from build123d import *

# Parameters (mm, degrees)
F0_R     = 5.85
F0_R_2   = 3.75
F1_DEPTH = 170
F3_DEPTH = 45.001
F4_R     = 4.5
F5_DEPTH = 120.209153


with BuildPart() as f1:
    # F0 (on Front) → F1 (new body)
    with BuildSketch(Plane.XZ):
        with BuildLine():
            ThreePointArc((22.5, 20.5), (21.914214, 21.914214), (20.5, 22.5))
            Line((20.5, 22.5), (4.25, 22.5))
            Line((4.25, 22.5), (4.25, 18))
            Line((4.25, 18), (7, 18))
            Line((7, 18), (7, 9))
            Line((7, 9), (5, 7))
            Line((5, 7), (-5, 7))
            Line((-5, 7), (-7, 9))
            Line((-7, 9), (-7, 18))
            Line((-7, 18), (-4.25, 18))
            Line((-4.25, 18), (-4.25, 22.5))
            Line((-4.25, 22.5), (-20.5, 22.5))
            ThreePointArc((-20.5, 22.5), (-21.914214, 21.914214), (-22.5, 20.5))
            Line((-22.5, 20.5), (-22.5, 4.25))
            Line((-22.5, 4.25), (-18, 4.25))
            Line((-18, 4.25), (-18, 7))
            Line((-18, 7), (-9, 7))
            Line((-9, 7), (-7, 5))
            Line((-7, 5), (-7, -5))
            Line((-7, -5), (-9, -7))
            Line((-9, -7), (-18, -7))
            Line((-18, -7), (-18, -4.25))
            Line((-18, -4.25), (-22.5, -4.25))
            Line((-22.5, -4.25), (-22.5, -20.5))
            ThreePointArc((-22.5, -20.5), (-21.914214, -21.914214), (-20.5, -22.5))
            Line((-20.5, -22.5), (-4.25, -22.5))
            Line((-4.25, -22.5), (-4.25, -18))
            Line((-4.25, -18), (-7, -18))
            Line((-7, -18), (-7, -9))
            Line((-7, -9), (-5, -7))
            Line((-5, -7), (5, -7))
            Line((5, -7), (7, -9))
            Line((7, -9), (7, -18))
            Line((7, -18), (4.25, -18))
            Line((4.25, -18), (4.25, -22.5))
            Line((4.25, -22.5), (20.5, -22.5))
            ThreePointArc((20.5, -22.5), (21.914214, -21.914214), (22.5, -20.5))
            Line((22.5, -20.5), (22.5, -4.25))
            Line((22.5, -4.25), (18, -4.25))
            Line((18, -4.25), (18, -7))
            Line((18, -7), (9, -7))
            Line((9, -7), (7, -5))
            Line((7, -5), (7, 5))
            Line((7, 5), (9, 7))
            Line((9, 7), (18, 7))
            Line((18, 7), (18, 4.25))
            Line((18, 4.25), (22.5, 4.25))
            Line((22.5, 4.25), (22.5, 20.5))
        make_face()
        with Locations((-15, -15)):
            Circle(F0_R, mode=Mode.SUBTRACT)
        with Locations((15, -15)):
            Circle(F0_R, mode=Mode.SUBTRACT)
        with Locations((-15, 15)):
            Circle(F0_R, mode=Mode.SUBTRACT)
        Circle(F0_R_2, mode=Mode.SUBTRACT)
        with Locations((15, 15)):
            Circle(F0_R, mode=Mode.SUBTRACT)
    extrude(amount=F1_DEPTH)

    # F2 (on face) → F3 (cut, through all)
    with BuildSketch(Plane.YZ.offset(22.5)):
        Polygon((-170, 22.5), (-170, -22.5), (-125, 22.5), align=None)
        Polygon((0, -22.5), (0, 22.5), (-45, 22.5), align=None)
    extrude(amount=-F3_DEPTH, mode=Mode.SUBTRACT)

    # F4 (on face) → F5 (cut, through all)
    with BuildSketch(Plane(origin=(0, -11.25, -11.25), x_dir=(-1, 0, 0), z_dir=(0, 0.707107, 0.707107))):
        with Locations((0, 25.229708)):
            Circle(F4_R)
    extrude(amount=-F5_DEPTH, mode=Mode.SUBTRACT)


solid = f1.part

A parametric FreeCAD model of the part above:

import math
import FreeCAD as App
import Part
import Sketcher


def add_polygon(sketch, points):
    """Adds a closed chain of lines whose ends are joined by coincident constraints."""
    first, n = sketch.GeometryCount, len(points)
    for a, b in zip(points, points[1:] + points[:1]):
        sketch.addGeometry(Part.LineSegment(App.Vector(*a, 0), App.Vector(*b, 0)), False)
    for i in range(n):
        sketch.addConstraint(Sketcher.Constraint("Coincident", first + i, 2, first + (i + 1) % n, 1))

doc = App.newDocument("Part")
body = doc.addObject("PartDesign::Body", "Body")

sketch1 = body.newObject("Sketcher::SketchObject", "Sketch")
sketch1.AttachmentSupport = (doc.getObject("XZ_Plane"), [""])
sketch1.MapMode = "FlatFace"
sketch1.addGeometry(Part.ArcOfCircle(Part.Circle(App.Vector(20.500001, 20.500001, 0), App.Vector(0, 0, 1), 1.999999), math.radians(-0.000043), math.radians(90.000043)), False)
sketch1.addGeometry(Part.LineSegment(App.Vector(20.5, 22.5, 0), App.Vector(4.25, 22.5, 0)), False)
sketch1.addGeometry(Part.LineSegment(App.Vector(4.25, 22.5, 0), App.Vector(4.25, 18, 0)), False)
sketch1.addGeometry(Part.LineSegment(App.Vector(4.25, 18, 0), App.Vector(7, 18, 0)), False)
sketch1.addGeometry(Part.LineSegment(App.Vector(7, 18, 0), App.Vector(7, 9, 0)), False)
sketch1.addGeometry(Part.LineSegment(App.Vector(7, 9, 0), App.Vector(5, 7, 0)), False)
sketch1.addGeometry(Part.LineSegment(App.Vector(5, 7, 0), App.Vector(-5, 7, 0)), False)
sketch1.addGeometry(Part.LineSegment(App.Vector(-5, 7, 0), App.Vector(-7, 9, 0)), False)
sketch1.addGeometry(Part.LineSegment(App.Vector(-7, 9, 0), App.Vector(-7, 18, 0)), False)
sketch1.addGeometry(Part.LineSegment(App.Vector(-7, 18, 0), App.Vector(-4.25, 18, 0)), False)
sketch1.addGeometry(Part.LineSegment(App.Vector(-4.25, 18, 0), App.Vector(-4.25, 22.5, 0)), False)
sketch1.addGeometry(Part.LineSegment(App.Vector(-4.25, 22.5, 0), App.Vector(-20.5, 22.5, 0)), False)
sketch1.addGeometry(Part.ArcOfCircle(Part.Circle(App.Vector(-20.500001, 20.500001, 0), App.Vector(0, 0, 1), 1.999999), math.radians(89.999957), math.radians(180.000043)), False)
sketch1.addGeometry(Part.LineSegment(App.Vector(-22.5, 20.5, 0), App.Vector(-22.5, 4.25, 0)), False)
sketch1.addGeometry(Part.LineSegment(App.Vector(-22.5, 4.25, 0), App.Vector(-18, 4.25, 0)), False)
sketch1.addGeometry(Part.LineSegment(App.Vector(-18, 4.25, 0), App.Vector(-18, 7, 0)), False)
sketch1.addGeometry(Part.LineSegment(App.Vector(-18, 7, 0), App.Vector(-9, 7, 0)), False)
sketch1.addGeometry(Part.LineSegment(App.Vector(-9, 7, 0), App.Vector(-7, 5, 0)), False)
sketch1.addGeometry(Part.LineSegment(App.Vector(-7, 5, 0), App.Vector(-7, -5, 0)), False)
sketch1.addGeometry(Part.LineSegment(App.Vector(-7, -5, 0), App.Vector(-9, -7, 0)), False)
sketch1.addGeometry(Part.LineSegment(App.Vector(-9, -7, 0), App.Vector(-18, -7, 0)), False)
sketch1.addGeometry(Part.LineSegment(App.Vector(-18, -7, 0), App.Vector(-18, -4.25, 0)), False)
sketch1.addGeometry(Part.LineSegment(App.Vector(-18, -4.25, 0), App.Vector(-22.5, -4.25, 0)), False)
sketch1.addGeometry(Part.LineSegment(App.Vector(-22.5, -4.25, 0), App.Vector(-22.5, -20.5, 0)), False)
sketch1.addGeometry(Part.ArcOfCircle(Part.Circle(App.Vector(-20.500001, -20.500001, 0), App.Vector(0, 0, 1), 1.999999), math.radians(179.999957), math.radians(270.000043)), False)
sketch1.addGeometry(Part.LineSegment(App.Vector(-20.5, -22.5, 0), App.Vector(-4.25, -22.5, 0)), False)
sketch1.addGeometry(Part.LineSegment(App.Vector(-4.25, -22.5, 0), App.Vector(-4.25, -18, 0)), False)
sketch1.addGeometry(Part.LineSegment(App.Vector(-4.25, -18, 0), App.Vector(-7, -18, 0)), False)
sketch1.addGeometry(Part.LineSegment(App.Vector(-7, -18, 0), App.Vector(-7, -9, 0)), False)
sketch1.addGeometry(Part.LineSegment(App.Vector(-7, -9, 0), App.Vector(-5, -7, 0)), False)
sketch1.addGeometry(Part.LineSegment(App.Vector(-5, -7, 0), App.Vector(5, -7, 0)), False)
sketch1.addGeometry(Part.LineSegment(App.Vector(5, -7, 0), App.Vector(7, -9, 0)), False)
sketch1.addGeometry(Part.LineSegment(App.Vector(7, -9, 0), App.Vector(7, -18, 0)), False)
sketch1.addGeometry(Part.LineSegment(App.Vector(7, -18, 0), App.Vector(4.25, -18, 0)), False)
sketch1.addGeometry(Part.LineSegment(App.Vector(4.25, -18, 0), App.Vector(4.25, -22.5, 0)), False)
sketch1.addGeometry(Part.LineSegment(App.Vector(4.25, -22.5, 0), App.Vector(20.5, -22.5, 0)), False)
sketch1.addGeometry(Part.ArcOfCircle(Part.Circle(App.Vector(20.500001, -20.500001, 0), App.Vector(0, 0, 1), 1.999999), math.radians(-90.000043), math.radians(0.000043)), False)
sketch1.addGeometry(Part.LineSegment(App.Vector(22.5, -20.5, 0), App.Vector(22.5, -4.25, 0)), False)
sketch1.addGeometry(Part.LineSegment(App.Vector(22.5, -4.25, 0), App.Vector(18, -4.25, 0)), False)
sketch1.addGeometry(Part.LineSegment(App.Vector(18, -4.25, 0), App.Vector(18, -7, 0)), False)
sketch1.addGeometry(Part.LineSegment(App.Vector(18, -7, 0), App.Vector(9, -7, 0)), False)
sketch1.addGeometry(Part.LineSegment(App.Vector(9, -7, 0), App.Vector(7, -5, 0)), False)
sketch1.addGeometry(Part.LineSegment(App.Vector(7, -5, 0), App.Vector(7, 5, 0)), False)
sketch1.addGeometry(Part.LineSegment(App.Vector(7, 5, 0), App.Vector(9, 7, 0)), False)
sketch1.addGeometry(Part.LineSegment(App.Vector(9, 7, 0), App.Vector(18, 7, 0)), False)
sketch1.addGeometry(Part.LineSegment(App.Vector(18, 7, 0), App.Vector(18, 4.25, 0)), False)
sketch1.addGeometry(Part.LineSegment(App.Vector(18, 4.25, 0), App.Vector(22.5, 4.25, 0)), False)
sketch1.addGeometry(Part.LineSegment(App.Vector(22.5, 4.25, 0), App.Vector(22.5, 20.5, 0)), False)
sketch1.addGeometry(Part.Circle(App.Vector(-15, -15, 0), App.Vector(0, 0, 1), 5.85), False)
sketch1.addGeometry(Part.Circle(App.Vector(15, -15, 0), App.Vector(0, 0, 1), 5.85), False)
sketch1.addGeometry(Part.Circle(App.Vector(-15, 15, 0), App.Vector(0, 0, 1), 5.85), False)
sketch1.addGeometry(Part.Circle(App.Vector(0, 0, 0), App.Vector(0, 0, 1), 3.75), False)
sketch1.addGeometry(Part.Circle(App.Vector(15, 15, 0), App.Vector(0, 0, 1), 5.85), False)
sketch1.addConstraint(Sketcher.Constraint("Tangent", 0, 2, 1, 1))
sketch1.addConstraint(Sketcher.Constraint("Coincident", 1, 2, 2, 1))
sketch1.addConstraint(Sketcher.Constraint("Coincident", 2, 2, 3, 1))
sketch1.addConstraint(Sketcher.Constraint("Coincident", 3, 2, 4, 1))
sketch1.addConstraint(Sketcher.Constraint("Coincident", 4, 2, 5, 1))
sketch1.addConstraint(Sketcher.Constraint("Coincident", 5, 2, 6, 1))
sketch1.addConstraint(Sketcher.Constraint("Coincident", 6, 2, 7, 1))
sketch1.addConstraint(Sketcher.Constraint("Coincident", 7, 2, 8, 1))
sketch1.addConstraint(Sketcher.Constraint("Coincident", 8, 2, 9, 1))
sketch1.addConstraint(Sketcher.Constraint("Coincident", 9, 2, 10, 1))
sketch1.addConstraint(Sketcher.Constraint("Coincident", 10, 2, 11, 1))
sketch1.addConstraint(Sketcher.Constraint("Tangent", 11, 2, 12, 1))
sketch1.addConstraint(Sketcher.Constraint("Tangent", 12, 2, 13, 1))
sketch1.addConstraint(Sketcher.Constraint("Coincident", 13, 2, 14, 1))
sketch1.addConstraint(Sketcher.Constraint("Coincident", 14, 2, 15, 1))
sketch1.addConstraint(Sketcher.Constraint("Coincident", 15, 2, 16, 1))
sketch1.addConstraint(Sketcher.Constraint("Coincident", 16, 2, 17, 1))
sketch1.addConstraint(Sketcher.Constraint("Coincident", 17, 2, 18, 1))
sketch1.addConstraint(Sketcher.Constraint("Coincident", 18, 2, 19, 1))
sketch1.addConstraint(Sketcher.Constraint("Coincident", 19, 2, 20, 1))
sketch1.addConstraint(Sketcher.Constraint("Coincident", 20, 2, 21, 1))
sketch1.addConstraint(Sketcher.Constraint("Coincident", 21, 2, 22, 1))
sketch1.addConstraint(Sketcher.Constraint("Coincident", 22, 2, 23, 1))
sketch1.addConstraint(Sketcher.Constraint("Tangent", 23, 2, 24, 1))
sketch1.addConstraint(Sketcher.Constraint("Tangent", 24, 2, 25, 1))
sketch1.addConstraint(Sketcher.Constraint("Coincident", 25, 2, 26, 1))
sketch1.addConstraint(Sketcher.Constraint("Coincident", 26, 2, 27, 1))
sketch1.addConstraint(Sketcher.Constraint("Coincident", 27, 2, 28, 1))
sketch1.addConstraint(Sketcher.Constraint("Coincident", 28, 2, 29, 1))
sketch1.addConstraint(Sketcher.Constraint("Coincident", 29, 2, 30, 1))
sketch1.addConstraint(Sketcher.Constraint("Coincident", 30, 2, 31, 1))
sketch1.addConstraint(Sketcher.Constraint("Coincident", 31, 2, 32, 1))
sketch1.addConstraint(Sketcher.Constraint("Coincident", 32, 2, 33, 1))
sketch1.addConstraint(Sketcher.Constraint("Coincident", 33, 2, 34, 1))
sketch1.addConstraint(Sketcher.Constraint("Coincident", 34, 2, 35, 1))
sketch1.addConstraint(Sketcher.Constraint("Tangent", 35, 2, 36, 1))
sketch1.addConstraint(Sketcher.Constraint("Tangent", 36, 2, 37, 1))
sketch1.addConstraint(Sketcher.Constraint("Coincident", 37, 2, 38, 1))
sketch1.addConstraint(Sketcher.Constraint("Coincident", 38, 2, 39, 1))
sketch1.addConstraint(Sketcher.Constraint("Coincident", 39, 2, 40, 1))
sketch1.addConstraint(Sketcher.Constraint("Coincident", 40, 2, 41, 1))
sketch1.addConstraint(Sketcher.Constraint("Coincident", 41, 2, 42, 1))
sketch1.addConstraint(Sketcher.Constraint("Coincident", 42, 2, 43, 1))
sketch1.addConstraint(Sketcher.Constraint("Coincident", 43, 2, 44, 1))
sketch1.addConstraint(Sketcher.Constraint("Coincident", 44, 2, 45, 1))
sketch1.addConstraint(Sketcher.Constraint("Coincident", 45, 2, 46, 1))
sketch1.addConstraint(Sketcher.Constraint("Coincident", 46, 2, 47, 1))
sketch1.addConstraint(Sketcher.Constraint("Tangent", 47, 2, 0, 1))
sketch1.addConstraint(Sketcher.Constraint("Horizontal", 1))
sketch1.addConstraint(Sketcher.Constraint("Vertical", 2))
sketch1.addConstraint(Sketcher.Constraint("Horizontal", 3))
sketch1.addConstraint(Sketcher.Constraint("Vertical", 4))
sketch1.addConstraint(Sketcher.Constraint("Horizontal", 6))
sketch1.addConstraint(Sketcher.Constraint("Vertical", 8))
sketch1.addConstraint(Sketcher.Constraint("Horizontal", 9))
sketch1.addConstraint(Sketcher.Constraint("Vertical", 10))
sketch1.addConstraint(Sketcher.Constraint("Horizontal", 11))
sketch1.addConstraint(Sketcher.Constraint("Vertical", 13))
sketch1.addConstraint(Sketcher.Constraint("Horizontal", 14))
sketch1.addConstraint(Sketcher.Constraint("Vertical", 15))
sketch1.addConstraint(Sketcher.Constraint("Horizontal", 16))
sketch1.addConstraint(Sketcher.Constraint("Vertical", 18))
sketch1.addConstraint(Sketcher.Constraint("Horizontal", 20))
sketch1.addConstraint(Sketcher.Constraint("Vertical", 21))
sketch1.addConstraint(Sketcher.Constraint("Horizontal", 22))
sketch1.addConstraint(Sketcher.Constraint("Vertical", 23))
sketch1.addConstraint(Sketcher.Constraint("Horizontal", 25))
sketch1.addConstraint(Sketcher.Constraint("Vertical", 26))
sketch1.addConstraint(Sketcher.Constraint("Horizontal", 27))
sketch1.addConstraint(Sketcher.Constraint("Vertical", 28))
sketch1.addConstraint(Sketcher.Constraint("Horizontal", 30))
sketch1.addConstraint(Sketcher.Constraint("Vertical", 32))
sketch1.addConstraint(Sketcher.Constraint("Horizontal", 33))
sketch1.addConstraint(Sketcher.Constraint("Vertical", 34))
sketch1.addConstraint(Sketcher.Constraint("Horizontal", 35))
sketch1.addConstraint(Sketcher.Constraint("Vertical", 37))
sketch1.addConstraint(Sketcher.Constraint("Horizontal", 38))
sketch1.addConstraint(Sketcher.Constraint("Vertical", 39))
sketch1.addConstraint(Sketcher.Constraint("Horizontal", 40))
sketch1.addConstraint(Sketcher.Constraint("Vertical", 42))
sketch1.addConstraint(Sketcher.Constraint("Horizontal", 44))
sketch1.addConstraint(Sketcher.Constraint("Vertical", 45))
sketch1.addConstraint(Sketcher.Constraint("Horizontal", 46))
sketch1.addConstraint(Sketcher.Constraint("Vertical", 47))
sketch1.addConstraint(Sketcher.Constraint("Coincident", 51, 3, -1, 1))
sketch1.addConstraint(Sketcher.Constraint("Equal", 0, 12))
sketch1.addConstraint(Sketcher.Constraint("Equal", 12, 24))
sketch1.addConstraint(Sketcher.Constraint("Equal", 24, 36))
sketch1.addConstraint(Sketcher.Constraint("Equal", 48, 49))
sketch1.addConstraint(Sketcher.Constraint("Equal", 49, 50))
sketch1.addConstraint(Sketcher.Constraint("Equal", 50, 52))
sketch1.addConstraint(Sketcher.Constraint("Symmetric", 0, 3, 24, 3, -1, 1))
sketch1.addConstraint(Sketcher.Constraint("Symmetric", 12, 3, 36, 3, -1, 1))
sketch1.addConstraint(Sketcher.Constraint("Symmetric", 49, 3, 50, 3, -1, 1))
sketch1.addConstraint(Sketcher.Constraint("Symmetric", 48, 3, 52, 3, -1, 1))
sketch1.addConstraint(Sketcher.Constraint("Symmetric", 2, 2, 26, 2, -1, 1))
sketch1.addConstraint(Sketcher.Constraint("Symmetric", 4, 2, 28, 2, -1, 1))
sketch1.addConstraint(Sketcher.Constraint("Symmetric", 5, 2, 29, 2, -1, 1))
sketch1.addConstraint(Sketcher.Constraint("Symmetric", 7, 2, 31, 2, -1, 1))
sketch1.addConstraint(Sketcher.Constraint("Symmetric", 9, 2, 33, 2, -1, 1))
sketch1.addConstraint(Sketcher.Constraint("Symmetric", 14, 2, 38, 2, -1, 1))
sketch1.addConstraint(Sketcher.Constraint("Symmetric", 16, 2, 40, 2, -1, 1))
sketch1.addConstraint(Sketcher.Constraint("Symmetric", 17, 2, 41, 2, -1, 1))
sketch1.addConstraint(Sketcher.Constraint("Symmetric", 19, 2, 43, 2, -1, 1))
sketch1.addConstraint(Sketcher.Constraint("Symmetric", 21, 2, 45, 2, -1, 1))
sketch1.addConstraint(Sketcher.Constraint("Symmetric", 0, 3, 12, 3, -2))
sketch1.addConstraint(Sketcher.Constraint("Symmetric", 48, 3, 49, 3, -2))
sketch1.addConstraint(Sketcher.Constraint("Symmetric", 4, 2, 7, 2, -2))
sketch1.addConstraint(Sketcher.Constraint("Symmetric", 2, 2, 9, 2, -2))
sketch1.addConstraint(Sketcher.Constraint("Symmetric", 21, 2, 38, 2, -2))
sketch1.addConstraint(Sketcher.Constraint("Symmetric", 19, 2, 40, 2, -2))
sketch1.addConstraint(Sketcher.Constraint("Perpendicular", 5, 7))
sketch1.addConstraint(Sketcher.Constraint("Parallel", 7, 17))
sketch1.addConstraint(Sketcher.Constraint("Perpendicular", 17, 19))
sketch1.addConstraint(Sketcher.Constraint("Perpendicular", 29, 31))
sketch1.addConstraint(Sketcher.Constraint("Perpendicular", 41, 43))
sketch1.addConstraint(Sketcher.Constraint("Horizontal", 6, 2, 15, 2))
sketch1.addConstraint(Sketcher.Constraint("Horizontal", 18, 2, 41, 2))
sketch1.addConstraint(Sketcher.Constraint("Vertical", 8, 2, 17, 2))
sketch1.addConstraint(Sketcher.Constraint("Equal", 46, 2))
sketch1.addConstraint(Sketcher.Constraint("Equal", 44, 4))
sketch1.addConstraint(Sketcher.Constraint("Equal", 35, 13))
sketch1.addConstraint(Sketcher.Constraint("Equal", 33, 15))
sketch1.addConstraint(Sketcher.Constraint("Equal", 30, 18))
sketch1.addConstraint(Sketcher.Constraint("Radius", 0, 1.999999))
sketch1.addConstraint(Sketcher.Constraint("Diameter", 48, 11.7))
sketch1.addConstraint(Sketcher.Constraint("Diameter", 51, 7.5))
sketch1.addConstraint(Sketcher.Constraint("DistanceX", 6, 2, 6, 1, 10.0))
sketch1.addConstraint(Sketcher.Constraint("DistanceX", 16, 1, 16, 2, 9.0))
sketch1.addConstraint(Sketcher.Constraint("DistanceX", 14, 1, 14, 2, 4.5))
sketch1.addConstraint(Sketcher.Constraint("DistanceX", 48, 3, -1, 1, 15.0))
sketch1.addConstraint(Sketcher.Constraint("DistanceY", 48, 3, -1, 1, 15.0))
sketch1.addConstraint(Sketcher.Constraint("DistanceY", -1, 1, 2, 2, 18.0))
sketch1.addConstraint(Sketcher.Constraint("DistanceX", 1, 2, 1, 1, 16.25))
pad1 = body.newObject("PartDesign::Pad", "Pad")
pad1.Profile = sketch1
pad1.Length = 170

sketch2 = body.newObject("Sketcher::SketchObject", "Sketch001")
sketch2.AttachmentSupport = (doc.getObject("YZ_Plane"), [""])
sketch2.MapMode = "FlatFace"
sketch2.AttachmentOffset = App.Placement(App.Vector(0, 0, 22.5), App.Rotation())
add_polygon(sketch2, [(-170, 22.5), (-170, -22.5), (-125, 22.5)])
add_polygon(sketch2, [(0, -22.5), (0, 22.5), (-45, 22.5)])
sketch2.addConstraint(Sketcher.Constraint("Vertical", 0))
sketch2.addConstraint(Sketcher.Constraint("Horizontal", 2))
sketch2.addConstraint(Sketcher.Constraint("Vertical", 3))
sketch2.addConstraint(Sketcher.Constraint("Horizontal", 4))
sketch2.addConstraint(Sketcher.Constraint("Symmetric", 3, 2, 5, 2, -1, 1))
sketch2.addConstraint(Sketcher.Constraint("Perpendicular", 1, 5))
sketch2.addConstraint(Sketcher.Constraint("Horizontal", 2, 2, 3, 2))
sketch2.addConstraint(Sketcher.Constraint("Horizontal", 0, 2, 5, 2))
sketch2.addConstraint(Sketcher.Constraint("Equal", 2, 4))
sketch2.addConstraint(Sketcher.Constraint("DistanceX", 2, 2, 2, 1, 45.0))
sketch2.addConstraint(Sketcher.Constraint("DistanceX", 0, 2, -1, 1, 170.0))
pocket1 = body.newObject("PartDesign::Pocket", "Pocket")
pocket1.Profile = sketch2
pocket1.Type = "ThroughAll"

sketch3 = body.newObject("Sketcher::SketchObject", "Sketch002")
sketch3.Placement = App.Placement(App.Vector(0, -11.25, -11.25), App.Rotation(App.Vector(-1, 0, 0), App.Vector(0, -0.707106781, 0.707106781), App.Vector(0, 0.707106781, 0.707106781), "ZXY"))
sketch3.addGeometry(Part.Circle(App.Vector(0, 25.229708, 0), App.Vector(0, 0, 1), 4.5), False)
sketch3.addConstraint(Sketcher.Constraint("PointOnObject", 0, 3, -2))
sketch3.addConstraint(Sketcher.Constraint("Diameter", 0, 9.0))
sketch3.addConstraint(Sketcher.Constraint("DistanceY", -1, 1, 0, 3, 25.229708))
pocket2 = body.newObject("PartDesign::Pocket", "Pocket001")
pocket2.Profile = sketch3
pocket2.Type = "ThroughAll"

doc.recompute()
